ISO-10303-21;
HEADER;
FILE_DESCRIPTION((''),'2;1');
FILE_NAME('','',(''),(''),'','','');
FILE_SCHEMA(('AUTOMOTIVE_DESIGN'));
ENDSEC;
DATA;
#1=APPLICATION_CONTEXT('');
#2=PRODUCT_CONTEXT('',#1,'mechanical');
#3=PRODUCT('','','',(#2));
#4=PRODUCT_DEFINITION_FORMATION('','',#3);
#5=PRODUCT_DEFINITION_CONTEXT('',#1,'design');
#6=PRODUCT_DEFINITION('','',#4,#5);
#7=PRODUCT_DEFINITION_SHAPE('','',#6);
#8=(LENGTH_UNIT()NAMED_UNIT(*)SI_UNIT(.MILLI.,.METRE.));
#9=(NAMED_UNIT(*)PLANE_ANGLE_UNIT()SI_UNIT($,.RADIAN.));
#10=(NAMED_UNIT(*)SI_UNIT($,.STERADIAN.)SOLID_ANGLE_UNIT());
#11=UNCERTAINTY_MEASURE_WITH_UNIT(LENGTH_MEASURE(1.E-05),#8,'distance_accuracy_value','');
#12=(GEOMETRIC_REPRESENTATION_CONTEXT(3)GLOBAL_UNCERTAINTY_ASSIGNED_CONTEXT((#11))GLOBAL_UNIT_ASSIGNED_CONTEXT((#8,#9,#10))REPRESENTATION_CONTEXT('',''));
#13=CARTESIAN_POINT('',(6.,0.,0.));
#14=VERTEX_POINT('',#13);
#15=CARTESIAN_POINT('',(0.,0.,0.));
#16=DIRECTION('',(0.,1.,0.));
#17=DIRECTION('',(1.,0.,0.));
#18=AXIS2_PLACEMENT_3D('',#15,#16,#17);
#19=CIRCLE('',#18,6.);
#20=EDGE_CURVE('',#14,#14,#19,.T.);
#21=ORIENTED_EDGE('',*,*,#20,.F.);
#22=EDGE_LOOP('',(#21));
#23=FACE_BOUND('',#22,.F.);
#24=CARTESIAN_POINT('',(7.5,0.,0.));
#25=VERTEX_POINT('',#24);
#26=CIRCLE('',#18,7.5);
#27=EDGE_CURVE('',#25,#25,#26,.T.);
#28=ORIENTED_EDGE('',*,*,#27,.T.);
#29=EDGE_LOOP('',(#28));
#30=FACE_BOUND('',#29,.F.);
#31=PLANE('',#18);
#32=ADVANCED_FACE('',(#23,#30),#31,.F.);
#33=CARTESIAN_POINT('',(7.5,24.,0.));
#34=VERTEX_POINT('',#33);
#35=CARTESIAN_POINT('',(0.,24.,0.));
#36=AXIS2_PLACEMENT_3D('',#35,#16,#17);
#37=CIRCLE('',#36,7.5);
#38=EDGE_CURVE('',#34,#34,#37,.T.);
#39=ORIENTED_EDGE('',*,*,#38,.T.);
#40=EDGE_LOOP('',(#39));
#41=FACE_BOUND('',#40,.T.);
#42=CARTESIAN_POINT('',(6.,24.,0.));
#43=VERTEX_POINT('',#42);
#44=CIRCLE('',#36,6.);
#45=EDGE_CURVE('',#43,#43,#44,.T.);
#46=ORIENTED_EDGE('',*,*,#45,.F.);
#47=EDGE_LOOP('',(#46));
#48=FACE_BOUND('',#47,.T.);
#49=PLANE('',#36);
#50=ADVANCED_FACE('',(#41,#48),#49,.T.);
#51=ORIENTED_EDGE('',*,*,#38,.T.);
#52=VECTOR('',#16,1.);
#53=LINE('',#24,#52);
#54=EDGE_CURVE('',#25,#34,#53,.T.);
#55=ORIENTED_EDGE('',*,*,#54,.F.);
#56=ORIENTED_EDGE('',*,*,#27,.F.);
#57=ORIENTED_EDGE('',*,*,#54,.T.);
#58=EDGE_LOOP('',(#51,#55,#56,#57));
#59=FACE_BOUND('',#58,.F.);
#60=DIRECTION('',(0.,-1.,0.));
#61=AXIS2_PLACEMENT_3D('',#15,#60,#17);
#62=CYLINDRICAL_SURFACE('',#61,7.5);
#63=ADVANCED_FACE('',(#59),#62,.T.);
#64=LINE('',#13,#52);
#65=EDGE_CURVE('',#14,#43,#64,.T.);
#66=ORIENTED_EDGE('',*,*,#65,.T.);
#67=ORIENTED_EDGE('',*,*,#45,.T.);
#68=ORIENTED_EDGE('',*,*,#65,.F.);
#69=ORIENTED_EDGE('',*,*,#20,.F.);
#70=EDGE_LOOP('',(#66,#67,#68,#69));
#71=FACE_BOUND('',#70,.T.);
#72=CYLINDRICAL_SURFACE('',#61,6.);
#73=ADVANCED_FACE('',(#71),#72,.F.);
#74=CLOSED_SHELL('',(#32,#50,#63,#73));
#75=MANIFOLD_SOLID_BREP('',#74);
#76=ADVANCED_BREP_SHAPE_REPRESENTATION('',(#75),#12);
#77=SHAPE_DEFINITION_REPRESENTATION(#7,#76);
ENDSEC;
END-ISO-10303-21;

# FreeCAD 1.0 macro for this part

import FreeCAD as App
import Part
import Sketcher
from FreeCAD import Vector

doc = App.newDocument("Part")
body = doc.addObject("PartDesign::Body", "Body")

# Sketch on XZ plane
sketch1 = doc.addObject("Sketcher::SketchObject", "Sketch")
body.addObject(sketch1)
sketch1.AttachmentSupport = (doc.XZ_Plane, [""])
sketch1.MapMode = "FlatFace"
sketch1.addGeometry(Part.Circle(Vector(0, 0, 0), Vector(0, 0, 1), 8), False)
sketch1.addGeometry(Part.Circle(Vector(0, 0, 0), Vector(0, 0, 1), 6), False)
sketch1.addConstraint(Sketcher.Constraint("Coincident", 0, 3, -1, 1))
sketch1.addConstraint(Sketcher.Constraint("Coincident", 1, 3, -1, 1))
sketch1.addConstraint(Sketcher.Constraint("Diameter", 0, 15.0))
sketch1.addConstraint(Sketcher.Constraint("Diameter", 1, 12.0))
pad1 = doc.addObject("PartDesign::Pad", "Pad")
body.addObject(pad1)
pad1.Profile = sketch1
pad1.Length = 24
pad1.Reversed = True

doc.recompute()
